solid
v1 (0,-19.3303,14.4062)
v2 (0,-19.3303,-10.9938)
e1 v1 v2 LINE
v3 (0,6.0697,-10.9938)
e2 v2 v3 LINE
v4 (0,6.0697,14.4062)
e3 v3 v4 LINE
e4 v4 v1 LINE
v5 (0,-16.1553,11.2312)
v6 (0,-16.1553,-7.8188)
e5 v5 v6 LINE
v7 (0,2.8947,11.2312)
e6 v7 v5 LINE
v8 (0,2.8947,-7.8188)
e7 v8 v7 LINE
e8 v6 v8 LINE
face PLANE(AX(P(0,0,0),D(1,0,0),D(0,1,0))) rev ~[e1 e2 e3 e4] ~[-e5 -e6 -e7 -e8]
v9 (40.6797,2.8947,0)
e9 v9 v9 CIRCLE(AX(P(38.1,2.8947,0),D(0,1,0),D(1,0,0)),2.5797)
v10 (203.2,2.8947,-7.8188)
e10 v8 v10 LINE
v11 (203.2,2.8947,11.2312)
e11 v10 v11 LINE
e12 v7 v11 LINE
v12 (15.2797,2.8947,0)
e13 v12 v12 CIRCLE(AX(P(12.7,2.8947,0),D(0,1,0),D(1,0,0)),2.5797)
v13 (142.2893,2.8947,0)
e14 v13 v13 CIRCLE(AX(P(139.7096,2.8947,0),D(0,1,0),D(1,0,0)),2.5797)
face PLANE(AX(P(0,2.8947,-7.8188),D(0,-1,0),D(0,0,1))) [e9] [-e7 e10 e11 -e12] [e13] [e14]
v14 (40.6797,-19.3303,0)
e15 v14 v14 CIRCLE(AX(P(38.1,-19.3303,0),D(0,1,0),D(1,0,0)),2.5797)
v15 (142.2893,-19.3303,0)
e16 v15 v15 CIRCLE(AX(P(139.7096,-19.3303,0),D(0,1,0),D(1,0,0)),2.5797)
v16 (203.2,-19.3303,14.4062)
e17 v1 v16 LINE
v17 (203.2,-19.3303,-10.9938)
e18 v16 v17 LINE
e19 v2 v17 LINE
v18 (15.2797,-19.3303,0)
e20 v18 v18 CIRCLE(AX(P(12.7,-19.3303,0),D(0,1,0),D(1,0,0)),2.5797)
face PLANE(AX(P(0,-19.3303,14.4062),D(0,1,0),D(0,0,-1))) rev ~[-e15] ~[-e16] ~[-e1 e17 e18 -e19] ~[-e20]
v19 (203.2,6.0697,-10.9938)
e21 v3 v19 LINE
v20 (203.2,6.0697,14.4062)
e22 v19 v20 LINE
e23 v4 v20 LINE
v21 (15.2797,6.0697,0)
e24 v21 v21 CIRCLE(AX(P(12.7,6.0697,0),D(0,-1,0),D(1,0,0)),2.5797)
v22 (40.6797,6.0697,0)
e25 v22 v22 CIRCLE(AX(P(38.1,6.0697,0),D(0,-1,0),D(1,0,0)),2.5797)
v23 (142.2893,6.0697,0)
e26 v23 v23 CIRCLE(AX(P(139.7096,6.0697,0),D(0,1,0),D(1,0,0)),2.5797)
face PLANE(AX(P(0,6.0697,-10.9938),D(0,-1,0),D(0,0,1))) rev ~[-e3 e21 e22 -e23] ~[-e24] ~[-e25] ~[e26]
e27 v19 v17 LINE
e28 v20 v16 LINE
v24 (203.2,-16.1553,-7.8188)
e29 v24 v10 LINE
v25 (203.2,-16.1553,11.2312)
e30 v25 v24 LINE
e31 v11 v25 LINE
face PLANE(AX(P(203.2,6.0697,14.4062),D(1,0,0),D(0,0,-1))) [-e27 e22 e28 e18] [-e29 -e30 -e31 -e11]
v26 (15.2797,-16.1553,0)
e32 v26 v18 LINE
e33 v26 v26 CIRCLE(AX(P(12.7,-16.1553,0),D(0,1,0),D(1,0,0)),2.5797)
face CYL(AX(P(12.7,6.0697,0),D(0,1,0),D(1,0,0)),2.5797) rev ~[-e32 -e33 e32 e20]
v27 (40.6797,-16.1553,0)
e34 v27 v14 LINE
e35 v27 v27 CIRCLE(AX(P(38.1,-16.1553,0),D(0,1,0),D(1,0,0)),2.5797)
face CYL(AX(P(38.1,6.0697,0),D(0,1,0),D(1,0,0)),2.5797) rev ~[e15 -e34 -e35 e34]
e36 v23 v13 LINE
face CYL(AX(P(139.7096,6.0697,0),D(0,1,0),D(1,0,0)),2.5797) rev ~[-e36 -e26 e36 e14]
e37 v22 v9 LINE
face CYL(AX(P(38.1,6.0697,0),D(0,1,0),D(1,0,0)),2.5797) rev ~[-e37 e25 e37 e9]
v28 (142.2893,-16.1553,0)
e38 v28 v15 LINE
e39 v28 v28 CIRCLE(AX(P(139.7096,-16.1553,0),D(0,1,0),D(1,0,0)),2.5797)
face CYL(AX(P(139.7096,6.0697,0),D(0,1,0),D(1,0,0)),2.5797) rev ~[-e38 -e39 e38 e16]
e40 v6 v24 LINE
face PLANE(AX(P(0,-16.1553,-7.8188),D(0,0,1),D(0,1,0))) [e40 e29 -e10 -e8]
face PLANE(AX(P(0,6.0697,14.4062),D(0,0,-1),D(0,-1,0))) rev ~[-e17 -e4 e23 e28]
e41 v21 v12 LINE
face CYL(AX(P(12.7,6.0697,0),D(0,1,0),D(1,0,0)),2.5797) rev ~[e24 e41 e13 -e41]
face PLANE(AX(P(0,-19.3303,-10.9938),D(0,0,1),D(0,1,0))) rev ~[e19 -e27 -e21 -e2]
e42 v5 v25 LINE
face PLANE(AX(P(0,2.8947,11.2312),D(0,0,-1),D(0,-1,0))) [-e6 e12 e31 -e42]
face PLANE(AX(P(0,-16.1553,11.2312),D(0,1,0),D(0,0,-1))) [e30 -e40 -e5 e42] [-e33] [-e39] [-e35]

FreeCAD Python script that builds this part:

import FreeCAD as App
import Part
import Sketcher
from FreeCAD import Vector
Q = App.Units.Quantity


def add_polygon(sketch, points):
    """Adds a closed chain of lines whose ends are joined by coincident constraints."""
    first, n = sketch.GeometryCount, len(points)
    for a, b in zip(points, points[1:] + points[:1]):
        sketch.addGeometry(Part.LineSegment(App.Vector(*a, 0), App.Vector(*b, 0)), False)
    for i in range(n):
        sketch.addConstraint(Sketcher.Constraint("Coincident", first + i, 2, first + (i + 1) % n, 1))

doc = App.newDocument("Part")
body = doc.addObject("PartDesign::Body", "Body")

sketch1 = body.newObject("Sketcher::SketchObject", "Sketch")
sketch1.AttachmentSupport = (doc.getObject("YZ_Plane"), [""])
sketch1.MapMode = "FlatFace"
add_polygon(sketch1, [(6.0697, -10.9938), (6.0697, 14.4062), (-19.3303, 14.4062), (-19.3303, -10.9938)])
add_polygon(sketch1, [(-16.1553, 11.2312), (2.8947, 11.2312), (2.8947, -7.8188), (-16.1553, -7.8188)])
sketch1.addConstraint([
    Sketcher.Constraint("Vertical", 0),
    Sketcher.Constraint("Horizontal", 1),
    Sketcher.Constraint("Vertical", 2),
    Sketcher.Constraint("Horizontal", 3),
    Sketcher.Constraint("Horizontal", 4),
    Sketcher.Constraint("Vertical", 5),
    Sketcher.Constraint("Horizontal", 6),
    Sketcher.Constraint("Vertical", 7),
    Sketcher.Constraint("Equal", 3, 0),
    Sketcher.Constraint("Equal", 6, 5),
    Sketcher.Constraint("DistanceX", 1, 2, 1, 1, Q("1 in")),
    Sketcher.Constraint("DistanceX", 4, 2, 0, 2, Q("0.125 in")),
    Sketcher.Constraint("DistanceY", 4, 2, 0, 2, Q("0.125 in")),
    Sketcher.Constraint("DistanceY", 3, 2, 5, 2, Q("0.125 in")),
    Sketcher.Constraint("DistanceX", -1, 1, 0, 2, Q("6.0697 mm")),
    Sketcher.Constraint("DistanceY", -1, 1, 0, 2, Q("14.4062 mm")),
])
pad1 = body.newObject("PartDesign::Pad", "Pad")
pad1.Profile = sketch1
pad1.Length = Q("12 in")

sketch2 = body.newObject("Sketcher::SketchObject", "Sketch001")
sketch2.AttachmentSupport = (doc.getObject("XZ_Plane"), [""])
sketch2.MapMode = "FlatFace"
sketch2.AttachmentOffset = App.Placement(Vector(0, 0, -6.0697), App.Rotation())
sketch2.addGeometry([
    Part.Circle(Vector(12.7, 0, 0), Vector(0, 0, 1), 2.5797),
    Part.Circle(Vector(38.1, 0, 0), Vector(0, 0, 1), 2.5797),
    Part.Circle(Vector(139.7096, 0, 0), Vector(0, 0, 1), 2.5797),
], False)
sketch2.addConstraint([
    Sketcher.Constraint("Equal", 0, 1),
    Sketcher.Constraint("Equal", 1, 2),
    Sketcher.Constraint("PointOnObject", 0, 3, -1),
    Sketcher.Constraint("PointOnObject", 1, 3, -1),
    Sketcher.Constraint("PointOnObject", 2, 3, -1),
    Sketcher.Constraint("Diameter", 0, Q("0.203126 in")),
    Sketcher.Constraint("DistanceX", 0, 3, 1, 3, Q("1 in")),
    Sketcher.Constraint("DistanceX", -1, 1, 0, 3, Q("0.5 in")),
    Sketcher.Constraint("DistanceX", -1, 1, 2, 3, Q("139.7096 mm")),
])
pocket1 = body.newObject("PartDesign::Pocket", "Pocket")
pocket1.Profile = sketch2
pocket1.Length = Q("12 in")
pocket1.Reversed = True

sketch3 = body.newObject("Sketcher::SketchObject", "Sketch002")
sketch3.AttachmentSupport = (doc.getObject("XZ_Plane"), [""])
sketch3.MapMode = "FlatFace"
sketch3.AttachmentOffset = App.Placement(Vector(0, 0, -6.0697), App.Rotation())
add_polygon(sketch3, [(304.8, 14.4062), (304.8, -10.9938), (203.2, -10.9938), (203.2, 14.4062)])
sketch3.addConstraint([
    Sketcher.Constraint("Vertical", 0),
    Sketcher.Constraint("Horizontal", 1),
    Sketcher.Constraint("Vertical", 2),
    Sketcher.Constraint("Horizontal", 3),
    Sketcher.Constraint("DistanceX", 1, 2, 1, 1, Q("4 in")),
    Sketcher.Constraint("DistanceY", 0, 2, 0, 1, Q("1 in")),
    Sketcher.Constraint("DistanceX", -1, 1, 0, 2, Q("12 in")),
    Sketcher.Constraint("DistanceY", 0, 2, -1, 1, Q("10.9938 mm")),
])
pocket2 = body.newObject("PartDesign::Pocket", "Pocket001")
pocket2.Profile = sketch3
pocket2.Length = Q("12 in")
pocket2.Reversed = True

doc.recompute()
